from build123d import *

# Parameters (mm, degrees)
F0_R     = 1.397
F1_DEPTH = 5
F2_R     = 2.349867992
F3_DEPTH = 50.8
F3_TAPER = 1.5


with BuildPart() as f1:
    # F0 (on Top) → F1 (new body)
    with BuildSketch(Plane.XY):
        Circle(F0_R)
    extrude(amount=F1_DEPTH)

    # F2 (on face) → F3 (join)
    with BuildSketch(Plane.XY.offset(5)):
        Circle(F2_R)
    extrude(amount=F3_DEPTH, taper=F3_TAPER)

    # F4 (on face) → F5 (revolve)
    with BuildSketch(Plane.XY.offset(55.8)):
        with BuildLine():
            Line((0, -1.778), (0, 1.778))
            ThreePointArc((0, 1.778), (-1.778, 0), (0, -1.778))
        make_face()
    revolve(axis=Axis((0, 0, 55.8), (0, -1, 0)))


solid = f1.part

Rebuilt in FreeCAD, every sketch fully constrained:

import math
import FreeCAD as App
import Part
import Sketcher
from FreeCAD import Vector
Q = App.Units.Quantity

doc = App.newDocument("Part")
body = doc.addObject("PartDesign::Body", "Body")

sketch1 = doc.addObject("Sketcher::SketchObject", "Sketch")
body.addObject(sketch1)
sketch1.AttachmentSupport = (doc.XY_Plane, [""])
sketch1.MapMode = "FlatFace"
sketch1.addGeometry(Part.Circle(Vector(0, 0, 0), Vector(0, 0, 1), 1.4), False)
sketch1.addConstraint([
    Sketcher.Constraint("Coincident", 0, 3, -1, 1),
    Sketcher.Constraint("Diameter", 0, Q("0.11 in")),
])
pad1 = doc.addObject("PartDesign::Pad", "Pad")
body.addObject(pad1)
pad1.Profile = sketch1
pad1.Length = 5

sketch2 = doc.addObject("Sketcher::SketchObject", "Sketch001")
body.addObject(sketch2)
sketch2.AttachmentSupport = (doc.XY_Plane, [""])
sketch2.MapMode = "FlatFace"
sketch2.AttachmentOffset = App.Placement(Vector(0, 0, 5), App.Rotation())
sketch2.addGeometry(Part.Circle(Vector(0, 0, 0), Vector(0, 0, 1), 2.3), False)
sketch2.addConstraint([
    Sketcher.Constraint("Coincident", 0, 3, -1, 1),
    Sketcher.Constraint("Diameter", 0, Q("4.699736 mm")),
])
pad2 = doc.addObject("PartDesign::Pad", "Pad001")
body.addObject(pad2)
pad2.Profile = sketch2
pad2.Length = Q("2 in")
pad2.TaperAngle = -1.5

sketch3 = doc.addObject("Sketcher::SketchObject", "Sketch002")
body.addObject(sketch3)
sketch3.AttachmentSupport = (doc.XY_Plane, [""])
sketch3.MapMode = "FlatFace"
sketch3.AttachmentOffset = App.Placement(Vector(0, 0, 55.8), App.Rotation())
sketch3.addGeometry([
    Part.LineSegment(Vector(0, -1.8, 0), Vector(0, 1.8, 0)),
    Part.ArcOfCircle(Part.Circle(Vector(0, 0, 0), Vector(0, 0, 1), 1.8), math.radians(90), math.radians(270)),
], False)
sketch3.addConstraint([
    Sketcher.Constraint("Coincident", 0, 1, 1, 2),
    Sketcher.Constraint("Coincident", 1, 1, 0, 2),
    Sketcher.Constraint("Vertical", 0),
    Sketcher.Constraint("Coincident", 1, 3, -1, 1),
    Sketcher.Constraint("PointOnObject", 0, 1, -2),
    Sketcher.Constraint("Radius", 1, Q("0.07 in")),
])
revolution = doc.addObject("PartDesign::Revolution", "Revolution")
body.addObject(revolution)
revolution.Profile = sketch3
revolution.ReferenceAxis = (sketch3, ["V_Axis"])
revolution.Angle = 360

doc.recompute()
